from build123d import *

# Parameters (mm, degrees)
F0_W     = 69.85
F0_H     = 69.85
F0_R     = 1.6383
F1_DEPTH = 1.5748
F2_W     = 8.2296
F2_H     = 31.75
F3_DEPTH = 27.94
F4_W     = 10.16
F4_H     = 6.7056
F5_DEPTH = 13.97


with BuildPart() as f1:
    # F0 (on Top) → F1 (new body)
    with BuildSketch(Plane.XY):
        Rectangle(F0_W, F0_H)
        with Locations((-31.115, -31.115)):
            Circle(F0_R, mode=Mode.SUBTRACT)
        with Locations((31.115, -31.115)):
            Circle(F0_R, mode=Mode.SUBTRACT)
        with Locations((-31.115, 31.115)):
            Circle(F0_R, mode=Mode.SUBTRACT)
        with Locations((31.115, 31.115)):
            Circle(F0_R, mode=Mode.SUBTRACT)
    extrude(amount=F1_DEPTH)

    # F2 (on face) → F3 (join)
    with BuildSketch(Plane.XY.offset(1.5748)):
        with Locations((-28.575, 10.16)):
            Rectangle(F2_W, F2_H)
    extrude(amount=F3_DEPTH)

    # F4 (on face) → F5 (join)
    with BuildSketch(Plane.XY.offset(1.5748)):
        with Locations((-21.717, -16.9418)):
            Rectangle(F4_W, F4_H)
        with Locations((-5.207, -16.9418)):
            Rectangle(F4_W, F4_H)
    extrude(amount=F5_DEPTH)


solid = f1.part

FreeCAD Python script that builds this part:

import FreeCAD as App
import Part
import Sketcher
from FreeCAD import Vector
Q = App.Units.Quantity


def add_polygon(sketch, points):
    """Adds a closed chain of lines whose ends are joined by coincident constraints."""
    first, n = sketch.GeometryCount, len(points)
    for a, b in zip(points, points[1:] + points[:1]):
        sketch.addGeometry(Part.LineSegment(App.Vector(*a, 0), App.Vector(*b, 0)), False)
    for i in range(n):
        sketch.addConstraint(Sketcher.Constraint("Coincident", first + i, 2, first + (i + 1) % n, 1))

doc = App.newDocument("Part")
params = doc.addObject("Spreadsheet::Sheet", "Params")
for row, (alias, value) in enumerate([
    ("sketch1_diameter", "0.129 in"),
    ("sketch1_width", "2.75 in"),
    ("pad1_length", "0.062 in"),
    ("sketch2_height", "1.25 in"),
    ("sketch2_width", "0.324 in"),
    ("pad2_length", "1.1 in"),
    ("sketch3_width", "0.4 in"),
    ("sketch3_height", "0.264 in"),
    ("pad3_length", "0.55 in"),
], start=1):
    params.set(f"A{row}", alias)
    params.set(f"B{row}", "=" + value)
    params.setAlias(f"B{row}", alias)

body = doc.addObject("PartDesign::Body", "Body")

# Sketch on XY plane
sketch1 = body.newObject("Sketcher::SketchObject", "Sketch")
sketch1.AttachmentSupport = (doc.getObject("XY_Plane"), [""])
sketch1.MapMode = "FlatFace"
add_polygon(sketch1, [(-34.9, 34.9), (-34.9, -34.9), (34.9, -34.9), (34.9, 34.9)])  # lines 0-3
sketch1.addGeometry(Part.Circle(Vector(-31.1, -31.1, 0), Vector(0, 0, 1), 1.6), False)  # 4
sketch1.addGeometry(Part.Circle(Vector(31.1, -31.1, 0), Vector(0, 0, 1), 1.6), False)  # 5
sketch1.addGeometry(Part.Circle(Vector(-31.1, 31.1, 0), Vector(0, 0, 1), 1.6), False)  # 6
sketch1.addGeometry(Part.Circle(Vector(31.1, 31.1, 0), Vector(0, 0, 1), 1.6), False)  # 7
sketch1.addConstraint([
    Sketcher.Constraint("Vertical", 0),
    Sketcher.Constraint("Horizontal", 1),
    Sketcher.Constraint("Vertical", 2),
    Sketcher.Constraint("Horizontal", 3),
    Sketcher.Constraint("Equal", 4, 5),
    Sketcher.Constraint("Equal", 5, 6),
    Sketcher.Constraint("Equal", 6, 7),
    Sketcher.Constraint("Symmetric", 5, 3, 6, 3, -1, 1),
    Sketcher.Constraint("Symmetric", 4, 3, 7, 3, -1, 1),
    Sketcher.Constraint("Symmetric", 0, 2, 2, 2, -1, 1),
    Sketcher.Constraint("Symmetric", 4, 3, 5, 3, -2),
    Sketcher.Constraint("Equal", 3, 0),
    Sketcher.Constraint("Diameter", 4, Q("0.129 in")),
    Sketcher.Constraint("DistanceX", 1, 1, 1, 2, Q("2.75 in")),
    Sketcher.Constraint("DistanceX", 0, 2, 5, 3, Q("2.6 in")),
    Sketcher.Constraint("DistanceY", 0, 2, 6, 3, Q("2.6 in")),
])
sketch1.setExpression("Constraints[16]", "Params.sketch1_diameter")
sketch1.setExpression("Constraints[17]", "Params.sketch1_width")
pad1 = body.newObject("PartDesign::Pad", "Pad")
pad1.Profile = sketch1
pad1.setExpression("Length", "Params.pad1_length")

# Sketch on XY plane
sketch2 = body.newObject("Sketcher::SketchObject", "Sketch001")
sketch2.AttachmentSupport = (doc.getObject("XY_Plane"), [""])
sketch2.MapMode = "FlatFace"
sketch2.AttachmentOffset = App.Placement(Vector(0, 0, 0.062 * 25.4), App.Rotation())
add_polygon(sketch2, [(-33, 26), (-33, -6), (-24, -6), (-24, 26)])  # lines 0-3
sketch2.addConstraint([
    Sketcher.Constraint("Vertical", 0),
    Sketcher.Constraint("Horizontal", 1),
    Sketcher.Constraint("Vertical", 2),
    Sketcher.Constraint("Horizontal", 3),
    Sketcher.Constraint("DistanceY", 0, 2, 0, 1, Q("1.25 in")),
    Sketcher.Constraint("DistanceX", 1, 1, 1, 2, Q("0.324 in")),
    Sketcher.Constraint("DistanceX", 0, 2, -1, 1, Q("1.287 in")),
    Sketcher.Constraint("DistanceY", 0, 2, -1, 1, Q("0.225 in")),
])
sketch2.setExpression("Constraints[8]", "Params.sketch2_height")
sketch2.setExpression("Constraints[9]", "Params.sketch2_width")
pad2 = body.newObject("PartDesign::Pad", "Pad001")
pad2.Profile = sketch2
pad2.setExpression("Length", "Params.pad2_length")

# Sketch on XY plane
sketch3 = body.newObject("Sketcher::SketchObject", "Sketch002")
sketch3.AttachmentSupport = (doc.getObject("XY_Plane"), [""])
sketch3.MapMode = "FlatFace"
sketch3.AttachmentOffset = App.Placement(Vector(0, 0, 0.062 * 25.4), App.Rotation())
add_polygon(sketch3, [(-27, -14), (-27, -20), (-17, -20), (-17, -14)])  # lines 0-3
add_polygon(sketch3, [(-10, -14), (-10, -20), (0, -20), (0, -14)])  # lines 4-7
sketch3.addConstraint([
    Sketcher.Constraint("Vertical", 0),
    Sketcher.Constraint("Horizontal", 1),
    Sketcher.Constraint("Vertical", 2),
    Sketcher.Constraint("Horizontal", 3),
    Sketcher.Constraint("Vertical", 4),
    Sketcher.Constraint("Horizontal", 5),
    Sketcher.Constraint("Vertical", 6),
    Sketcher.Constraint("Horizontal", 7),
    Sketcher.Constraint("Horizontal", 1, 2, 4, 2),
    Sketcher.Constraint("Horizontal", 3, 2, 6, 2),
    Sketcher.Constraint("Equal", 3, 5),
    Sketcher.Constraint("DistanceX", 1, 1, 1, 2, Q("0.4 in")),
    Sketcher.Constraint("DistanceY", 0, 2, 0, 1, Q("0.264 in")),
    Sketcher.Constraint("DistanceX", 1, 2, 4, 2, Q("0.25 in")),
    Sketcher.Constraint("DistanceX", 0, 2, -1, 1, Q("1.055 in")),
    Sketcher.Constraint("DistanceY", 0, 2, -1, 1, Q("0.799 in")),
])
sketch3.setExpression("Constraints[19]", "Params.sketch3_width")
sketch3.setExpression("Constraints[20]", "Params.sketch3_height")
pad3 = body.newObject("PartDesign::Pad", "Pad002")
pad3.Profile = sketch3
pad3.setExpression("Length", "Params.pad3_length")

doc.recompute()
